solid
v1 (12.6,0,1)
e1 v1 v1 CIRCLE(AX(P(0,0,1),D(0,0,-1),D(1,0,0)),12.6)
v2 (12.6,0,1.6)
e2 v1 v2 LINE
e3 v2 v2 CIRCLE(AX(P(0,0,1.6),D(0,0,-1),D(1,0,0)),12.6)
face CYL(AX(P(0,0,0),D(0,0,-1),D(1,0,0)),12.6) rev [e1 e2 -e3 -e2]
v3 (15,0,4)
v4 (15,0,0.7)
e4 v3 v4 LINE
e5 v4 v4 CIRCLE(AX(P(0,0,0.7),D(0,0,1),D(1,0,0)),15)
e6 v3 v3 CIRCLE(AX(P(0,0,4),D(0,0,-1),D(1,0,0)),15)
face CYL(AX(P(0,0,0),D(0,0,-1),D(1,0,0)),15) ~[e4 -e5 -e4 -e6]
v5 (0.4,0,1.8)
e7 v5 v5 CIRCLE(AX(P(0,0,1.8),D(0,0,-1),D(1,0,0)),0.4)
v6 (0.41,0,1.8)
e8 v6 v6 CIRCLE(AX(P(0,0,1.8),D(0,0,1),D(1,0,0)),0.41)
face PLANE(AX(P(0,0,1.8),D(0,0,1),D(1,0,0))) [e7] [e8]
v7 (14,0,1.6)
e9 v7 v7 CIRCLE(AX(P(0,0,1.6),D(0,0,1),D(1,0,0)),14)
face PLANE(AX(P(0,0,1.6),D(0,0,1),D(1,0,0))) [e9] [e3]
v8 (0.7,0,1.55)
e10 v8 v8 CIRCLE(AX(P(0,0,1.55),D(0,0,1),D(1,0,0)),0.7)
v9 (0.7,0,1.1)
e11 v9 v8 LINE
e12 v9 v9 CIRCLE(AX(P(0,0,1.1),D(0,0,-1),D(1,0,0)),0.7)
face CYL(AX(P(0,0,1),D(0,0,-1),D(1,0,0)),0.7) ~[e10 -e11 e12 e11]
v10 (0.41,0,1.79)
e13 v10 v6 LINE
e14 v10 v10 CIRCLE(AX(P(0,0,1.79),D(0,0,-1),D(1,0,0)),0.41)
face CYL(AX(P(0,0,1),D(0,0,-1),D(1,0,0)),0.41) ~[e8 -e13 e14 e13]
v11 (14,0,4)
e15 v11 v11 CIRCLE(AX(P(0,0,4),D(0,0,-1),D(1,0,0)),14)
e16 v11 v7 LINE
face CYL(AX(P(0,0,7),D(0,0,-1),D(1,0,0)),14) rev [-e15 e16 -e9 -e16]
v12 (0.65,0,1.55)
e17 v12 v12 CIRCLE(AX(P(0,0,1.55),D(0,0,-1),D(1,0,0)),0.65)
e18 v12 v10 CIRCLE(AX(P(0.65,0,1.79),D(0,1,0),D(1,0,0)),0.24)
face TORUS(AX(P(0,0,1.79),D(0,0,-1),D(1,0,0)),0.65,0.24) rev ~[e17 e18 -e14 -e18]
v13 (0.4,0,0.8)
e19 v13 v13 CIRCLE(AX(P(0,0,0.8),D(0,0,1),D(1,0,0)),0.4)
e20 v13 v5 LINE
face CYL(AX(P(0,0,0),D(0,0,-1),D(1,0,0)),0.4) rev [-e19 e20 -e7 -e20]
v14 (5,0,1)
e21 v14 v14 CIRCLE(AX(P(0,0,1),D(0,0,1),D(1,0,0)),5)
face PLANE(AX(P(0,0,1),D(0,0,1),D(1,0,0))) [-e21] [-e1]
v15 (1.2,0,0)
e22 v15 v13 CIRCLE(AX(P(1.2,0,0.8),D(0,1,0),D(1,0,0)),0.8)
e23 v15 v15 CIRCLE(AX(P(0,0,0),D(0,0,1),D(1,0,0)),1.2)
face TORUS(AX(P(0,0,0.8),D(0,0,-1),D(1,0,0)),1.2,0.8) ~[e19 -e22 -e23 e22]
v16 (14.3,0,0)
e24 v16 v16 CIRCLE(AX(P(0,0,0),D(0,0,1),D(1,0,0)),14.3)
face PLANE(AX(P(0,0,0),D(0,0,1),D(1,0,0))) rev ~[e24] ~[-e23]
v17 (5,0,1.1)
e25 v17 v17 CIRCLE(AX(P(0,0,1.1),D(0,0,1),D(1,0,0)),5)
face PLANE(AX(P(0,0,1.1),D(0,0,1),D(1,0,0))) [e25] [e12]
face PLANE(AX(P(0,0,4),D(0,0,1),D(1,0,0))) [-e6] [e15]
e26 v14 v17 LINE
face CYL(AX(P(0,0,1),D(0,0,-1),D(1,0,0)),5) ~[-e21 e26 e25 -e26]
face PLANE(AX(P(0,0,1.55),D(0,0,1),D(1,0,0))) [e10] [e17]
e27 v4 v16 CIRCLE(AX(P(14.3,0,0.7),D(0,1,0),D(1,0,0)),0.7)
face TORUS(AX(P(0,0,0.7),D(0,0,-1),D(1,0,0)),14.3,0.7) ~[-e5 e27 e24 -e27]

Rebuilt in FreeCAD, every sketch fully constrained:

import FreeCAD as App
import Part
import Sketcher
Q = App.Units.Quantity


def edges_at(feature, points):
    """Names of the edges that pass closest to the given points."""
    edges = feature.Shape.Edges
    near = lambda p: min(range(len(edges)), key=lambda i: edges[i].distToShape(Part.Vertex(*p))[0])
    return sorted({f"Edge{near(p) + 1}" for p in points})

doc = App.newDocument("Part")
body = doc.addObject("PartDesign::Body", "Body")

# Sketch on XY plane
sketch1 = body.newObject("Sketcher::SketchObject", "Sketch")
sketch1.AttachmentSupport = (doc.getObject("XY_Plane"), [""])
sketch1.MapMode = "FlatFace"
sketch1.AttachmentOffset = App.Placement(App.Vector(0, 0, 4), App.Rotation())
sketch1.addGeometry(Part.Circle(App.Vector(0, 0, 0), App.Vector(0, 0, 1), 16), False)
sketch1.addConstraint(Sketcher.Constraint("Coincident", 0, 3, -1, 1))
sketch1.addConstraint(Sketcher.Constraint("Diameter", 0, Q("32 mm")))
pad1 = body.newObject("PartDesign::Pad", "Pad")
pad1.Profile = sketch1
pad1.Length = 10
body2 = doc.addObject("PartDesign::Body", "Body001")

# Sketch on XY plane
sketch2 = body2.newObject("Sketcher::SketchObject", "Sketch001")
sketch2.AttachmentSupport = (doc.getObject("XY_Plane001"), [""])
sketch2.MapMode = "FlatFace"
sketch2.AttachmentOffset = App.Placement(App.Vector(0, 0, 1.6), App.Rotation())
sketch2.addGeometry(Part.Circle(App.Vector(0, 0, 0), App.Vector(0, 0, 1), 14), False)
sketch2.addConstraint(Sketcher.Constraint("Coincident", 0, 3, -1, 1))
sketch2.addConstraint(Sketcher.Constraint("Diameter", 0, Q("28 mm")))
pad2 = body2.newObject("PartDesign::Pad", "Pad001")
pad2.Profile = sketch2
pad2.Length = 6.4
body3 = doc.addObject("PartDesign::Body", "Body002")

# Sketch on XY plane
sketch3 = body3.newObject("Sketcher::SketchObject", "Sketch002")
sketch3.AttachmentSupport = (doc.getObject("XY_Plane002"), [""])
sketch3.MapMode = "FlatFace"
sketch3.AttachmentOffset = App.Placement(App.Vector(0, 0, 7), App.Rotation())
sketch3.addGeometry(Part.Circle(App.Vector(0, 0, 0), App.Vector(0, 0, 1), 14), False)
sketch3.addConstraint(Sketcher.Constraint("Coincident", 0, 3, -1, 1))
sketch3.addConstraint(Sketcher.Constraint("Diameter", 0, Q("28 mm")))
pad3 = body3.newObject("PartDesign::Pad", "Pad002")
pad3.Profile = sketch3
pad3.Length = 1
body4 = doc.addObject("PartDesign::Body", "Body003")

# Sketch on XY plane
sketch4 = body4.newObject("Sketcher::SketchObject", "Sketch003")
sketch4.AttachmentSupport = (doc.getObject("XY_Plane003"), [""])
sketch4.MapMode = "FlatFace"
sketch4.addGeometry(Part.Circle(App.Vector(0, 0, 0), App.Vector(0, 0, 1), 0.4), False)
sketch4.addConstraint(Sketcher.Constraint("Coincident", 0, 3, -1, 1))
sketch4.addConstraint(Sketcher.Constraint("Diameter", 0, Q("0.8 mm")))
pad4 = body4.newObject("PartDesign::Pad", "Pad003")
pad4.Profile = sketch4
pad4.Length = 1
body5 = doc.addObject("PartDesign::Body", "Body004")

# Sketch on XY plane
sketch5 = body5.newObject("Sketcher::SketchObject", "Sketch004")
sketch5.AttachmentSupport = (doc.getObject("XY_Plane004"), [""])
sketch5.MapMode = "FlatFace"
sketch5.addGeometry(Part.Circle(App.Vector(0, 0, 0), App.Vector(0, 0, 1), 12.6), False)
sketch5.addConstraint(Sketcher.Constraint("Coincident", 0, 3, -1, 1))
sketch5.addConstraint(Sketcher.Constraint("Diameter", 0, Q("25.2 mm")))
pad5 = body5.newObject("PartDesign::Pad", "Pad004")
pad5.Profile = sketch5
pad5.Length = 8
body6 = doc.addObject("PartDesign::Body", "Body005")

# Sketch on XY plane
sketch6 = body6.newObject("Sketcher::SketchObject", "Sketch005")
sketch6.AttachmentSupport = (doc.getObject("XY_Plane005"), [""])
sketch6.MapMode = "FlatFace"
sketch6.addGeometry(Part.Circle(App.Vector(0, 0, 0), App.Vector(0, 0, 1), 15), False)
sketch6.addConstraint(Sketcher.Constraint("Coincident", 0, 3, -1, 1))
sketch6.addConstraint(Sketcher.Constraint("Diameter", 0, Q("30 mm")))
pad6 = body6.newObject("PartDesign::Pad", "Pad005")
pad6.Profile = sketch6
pad6.Length = 8
doc.recompute()

boolean = body6.newObject("PartDesign::Boolean", "Boolean")
boolean.Type = "Cut"
boolean.addObjects([body5])
body7 = doc.addObject("PartDesign::Body", "Body006")

# Sketch on XY plane
sketch7 = body7.newObject("Sketcher::SketchObject", "Sketch006")
sketch7.AttachmentSupport = (doc.getObject("XY_Plane006"), [""])
sketch7.MapMode = "FlatFace"
sketch7.addGeometry(Part.Circle(App.Vector(0, 0, 0), App.Vector(0, 0, 1), 15), False)
sketch7.addConstraint(Sketcher.Constraint("Coincident", 0, 3, -1, 1))
sketch7.addConstraint(Sketcher.Constraint("Diameter", 0, Q("30 mm")))
pad7 = body7.newObject("PartDesign::Pad", "Pad006")
pad7.Profile = sketch7
pad7.Length = 1
doc.recompute()

boolean2 = body7.newObject("PartDesign::Boolean", "Boolean001")
boolean2.Type = "Fuse"
boolean2.addObjects([body6])
doc.recompute()

boolean3 = body7.newObject("PartDesign::Boolean", "Boolean002")
boolean3.Type = "Cut"
boolean3.addObjects([body4])
doc.recompute()

boolean4 = body7.newObject("PartDesign::Boolean", "Boolean003")
boolean4.Type = "Cut"
boolean4.addObjects([body3])
doc.recompute()

fillet = body7.newObject("PartDesign::Fillet", "Fillet")
fillet.Base = (boolean4, edges_at(boolean4, [(-15, 0, 8)]))
fillet.Radius = 0.7
doc.recompute()

fillet2 = body7.newObject("PartDesign::Fillet", "Fillet001")
fillet2.Base = (fillet, edges_at(fillet, [(-15, 0, 0)]))
fillet2.Radius = 0.7
doc.recompute()

fillet3 = body7.newObject("PartDesign::Fillet", "Fillet002")
fillet3.Base = (fillet2, edges_at(fillet2, [(-0.4, 0, 0)]))
fillet3.Radius = 0.8
doc.recompute()

boolean5 = body7.newObject("PartDesign::Boolean", "Boolean004")
boolean5.Type = "Cut"
boolean5.addObjects([body2])
doc.recompute()

boolean6 = body7.newObject("PartDesign::Boolean", "Boolean005")
boolean6.Type = "Cut"
boolean6.addObjects([body])
body8 = doc.addObject("PartDesign::Body", "Body007")

# Sketch on XY plane
sketch8 = body8.newObject("Sketcher::SketchObject", "Sketch007")
sketch8.AttachmentSupport = (doc.getObject("XY_Plane007"), [""])
sketch8.MapMode = "FlatFace"
sketch8.AttachmentOffset = App.Placement(App.Vector(0, 0, 1), App.Rotation())
sketch8.addGeometry(Part.Circle(App.Vector(0, 0, 0), App.Vector(0, 0, 1), 0.4), False)
sketch8.addConstraint(Sketcher.Constraint("Coincident", 0, 3, -1, 1))
sketch8.addConstraint(Sketcher.Constraint("Diameter", 0, Q("0.8 mm")))
pad8 = body8.newObject("PartDesign::Pad", "Pad007")
pad8.Profile = sketch8
pad8.Length = 2
body9 = doc.addObject("PartDesign::Body", "Body008")

# Sketch on XY plane
sketch9 = body9.newObject("Sketcher::SketchObject", "Sketch008")
sketch9.AttachmentSupport = (doc.getObject("XY_Plane008"), [""])
sketch9.MapMode = "FlatFace"
sketch9.AttachmentOffset = App.Placement(App.Vector(0, 0, 1), App.Rotation())
sketch9.addGeometry(Part.Circle(App.Vector(0, 0, 0), App.Vector(0, 0, 1), 0.41), False)
sketch9.addConstraint(Sketcher.Constraint("Coincident", 0, 3, -1, 1))
sketch9.addConstraint(Sketcher.Constraint("Diameter", 0, Q("0.82 mm")))
pad9 = body9.newObject("PartDesign::Pad", "Pad008")
pad9.Profile = sketch9
pad9.Length = 0.8
body10 = doc.addObject("PartDesign::Body", "Body009")

# Sketch on XY plane
sketch10 = body10.newObject("Sketcher::SketchObject", "Sketch009")
sketch10.AttachmentSupport = (doc.getObject("XY_Plane009"), [""])
sketch10.MapMode = "FlatFace"
sketch10.AttachmentOffset = App.Placement(App.Vector(0, 0, 1), App.Rotation())
sketch10.addGeometry(Part.Circle(App.Vector(0, 0, 0), App.Vector(0, 0, 1), 0.7), False)
sketch10.addConstraint(Sketcher.Constraint("Coincident", 0, 3, -1, 1))
sketch10.addConstraint(Sketcher.Constraint("Diameter", 0, Q("1.4 mm")))
pad10 = body10.newObject("PartDesign::Pad", "Pad009")
pad10.Profile = sketch10
pad10.Length = 0.55
doc.recompute()

boolean7 = body10.newObject("PartDesign::Boolean", "Boolean006")
boolean7.Type = "Fuse"
boolean7.addObjects([body9])
doc.recompute()

fillet4 = body10.newObject("PartDesign::Fillet", "Fillet003")
fillet4.Base = (boolean7, edges_at(boolean7, [(-0.41, 0, 1.55)]))
fillet4.Radius = 0.24
body11 = doc.addObject("PartDesign::Body", "Body010")

# Sketch on XY plane
sketch11 = body11.newObject("Sketcher::SketchObject", "Sketch010")
sketch11.AttachmentSupport = (doc.getObject("XY_Plane010"), [""])
sketch11.MapMode = "FlatFace"
sketch11.AttachmentOffset = App.Placement(App.Vector(0, 0, 1), App.Rotation())
sketch11.addGeometry(Part.Circle(App.Vector(0, 0, 0), App.Vector(0, 0, 1), 5), False)
sketch11.addConstraint(Sketcher.Constraint("Coincident", 0, 3, -1, 1))
sketch11.addConstraint(Sketcher.Constraint("Diameter", 0, Q("10 mm")))
pad11 = body11.newObject("PartDesign::Pad", "Pad010")
pad11.Profile = sketch11
pad11.Length = 0.1
doc.recompute()

boolean8 = body11.newObject("PartDesign::Boolean", "Boolean007")
boolean8.Type = "Fuse"
boolean8.addObjects([body10])
doc.recompute()

boolean9 = body11.newObject("PartDesign::Boolean", "Boolean008")
boolean9.Type = "Cut"
boolean9.addObjects([body8])
doc.recompute()

boolean10 = body11.newObject("PartDesign::Boolean", "Boolean009")
boolean10.Type = "Fuse"
boolean10.addObjects([body7])

doc.recompute()
